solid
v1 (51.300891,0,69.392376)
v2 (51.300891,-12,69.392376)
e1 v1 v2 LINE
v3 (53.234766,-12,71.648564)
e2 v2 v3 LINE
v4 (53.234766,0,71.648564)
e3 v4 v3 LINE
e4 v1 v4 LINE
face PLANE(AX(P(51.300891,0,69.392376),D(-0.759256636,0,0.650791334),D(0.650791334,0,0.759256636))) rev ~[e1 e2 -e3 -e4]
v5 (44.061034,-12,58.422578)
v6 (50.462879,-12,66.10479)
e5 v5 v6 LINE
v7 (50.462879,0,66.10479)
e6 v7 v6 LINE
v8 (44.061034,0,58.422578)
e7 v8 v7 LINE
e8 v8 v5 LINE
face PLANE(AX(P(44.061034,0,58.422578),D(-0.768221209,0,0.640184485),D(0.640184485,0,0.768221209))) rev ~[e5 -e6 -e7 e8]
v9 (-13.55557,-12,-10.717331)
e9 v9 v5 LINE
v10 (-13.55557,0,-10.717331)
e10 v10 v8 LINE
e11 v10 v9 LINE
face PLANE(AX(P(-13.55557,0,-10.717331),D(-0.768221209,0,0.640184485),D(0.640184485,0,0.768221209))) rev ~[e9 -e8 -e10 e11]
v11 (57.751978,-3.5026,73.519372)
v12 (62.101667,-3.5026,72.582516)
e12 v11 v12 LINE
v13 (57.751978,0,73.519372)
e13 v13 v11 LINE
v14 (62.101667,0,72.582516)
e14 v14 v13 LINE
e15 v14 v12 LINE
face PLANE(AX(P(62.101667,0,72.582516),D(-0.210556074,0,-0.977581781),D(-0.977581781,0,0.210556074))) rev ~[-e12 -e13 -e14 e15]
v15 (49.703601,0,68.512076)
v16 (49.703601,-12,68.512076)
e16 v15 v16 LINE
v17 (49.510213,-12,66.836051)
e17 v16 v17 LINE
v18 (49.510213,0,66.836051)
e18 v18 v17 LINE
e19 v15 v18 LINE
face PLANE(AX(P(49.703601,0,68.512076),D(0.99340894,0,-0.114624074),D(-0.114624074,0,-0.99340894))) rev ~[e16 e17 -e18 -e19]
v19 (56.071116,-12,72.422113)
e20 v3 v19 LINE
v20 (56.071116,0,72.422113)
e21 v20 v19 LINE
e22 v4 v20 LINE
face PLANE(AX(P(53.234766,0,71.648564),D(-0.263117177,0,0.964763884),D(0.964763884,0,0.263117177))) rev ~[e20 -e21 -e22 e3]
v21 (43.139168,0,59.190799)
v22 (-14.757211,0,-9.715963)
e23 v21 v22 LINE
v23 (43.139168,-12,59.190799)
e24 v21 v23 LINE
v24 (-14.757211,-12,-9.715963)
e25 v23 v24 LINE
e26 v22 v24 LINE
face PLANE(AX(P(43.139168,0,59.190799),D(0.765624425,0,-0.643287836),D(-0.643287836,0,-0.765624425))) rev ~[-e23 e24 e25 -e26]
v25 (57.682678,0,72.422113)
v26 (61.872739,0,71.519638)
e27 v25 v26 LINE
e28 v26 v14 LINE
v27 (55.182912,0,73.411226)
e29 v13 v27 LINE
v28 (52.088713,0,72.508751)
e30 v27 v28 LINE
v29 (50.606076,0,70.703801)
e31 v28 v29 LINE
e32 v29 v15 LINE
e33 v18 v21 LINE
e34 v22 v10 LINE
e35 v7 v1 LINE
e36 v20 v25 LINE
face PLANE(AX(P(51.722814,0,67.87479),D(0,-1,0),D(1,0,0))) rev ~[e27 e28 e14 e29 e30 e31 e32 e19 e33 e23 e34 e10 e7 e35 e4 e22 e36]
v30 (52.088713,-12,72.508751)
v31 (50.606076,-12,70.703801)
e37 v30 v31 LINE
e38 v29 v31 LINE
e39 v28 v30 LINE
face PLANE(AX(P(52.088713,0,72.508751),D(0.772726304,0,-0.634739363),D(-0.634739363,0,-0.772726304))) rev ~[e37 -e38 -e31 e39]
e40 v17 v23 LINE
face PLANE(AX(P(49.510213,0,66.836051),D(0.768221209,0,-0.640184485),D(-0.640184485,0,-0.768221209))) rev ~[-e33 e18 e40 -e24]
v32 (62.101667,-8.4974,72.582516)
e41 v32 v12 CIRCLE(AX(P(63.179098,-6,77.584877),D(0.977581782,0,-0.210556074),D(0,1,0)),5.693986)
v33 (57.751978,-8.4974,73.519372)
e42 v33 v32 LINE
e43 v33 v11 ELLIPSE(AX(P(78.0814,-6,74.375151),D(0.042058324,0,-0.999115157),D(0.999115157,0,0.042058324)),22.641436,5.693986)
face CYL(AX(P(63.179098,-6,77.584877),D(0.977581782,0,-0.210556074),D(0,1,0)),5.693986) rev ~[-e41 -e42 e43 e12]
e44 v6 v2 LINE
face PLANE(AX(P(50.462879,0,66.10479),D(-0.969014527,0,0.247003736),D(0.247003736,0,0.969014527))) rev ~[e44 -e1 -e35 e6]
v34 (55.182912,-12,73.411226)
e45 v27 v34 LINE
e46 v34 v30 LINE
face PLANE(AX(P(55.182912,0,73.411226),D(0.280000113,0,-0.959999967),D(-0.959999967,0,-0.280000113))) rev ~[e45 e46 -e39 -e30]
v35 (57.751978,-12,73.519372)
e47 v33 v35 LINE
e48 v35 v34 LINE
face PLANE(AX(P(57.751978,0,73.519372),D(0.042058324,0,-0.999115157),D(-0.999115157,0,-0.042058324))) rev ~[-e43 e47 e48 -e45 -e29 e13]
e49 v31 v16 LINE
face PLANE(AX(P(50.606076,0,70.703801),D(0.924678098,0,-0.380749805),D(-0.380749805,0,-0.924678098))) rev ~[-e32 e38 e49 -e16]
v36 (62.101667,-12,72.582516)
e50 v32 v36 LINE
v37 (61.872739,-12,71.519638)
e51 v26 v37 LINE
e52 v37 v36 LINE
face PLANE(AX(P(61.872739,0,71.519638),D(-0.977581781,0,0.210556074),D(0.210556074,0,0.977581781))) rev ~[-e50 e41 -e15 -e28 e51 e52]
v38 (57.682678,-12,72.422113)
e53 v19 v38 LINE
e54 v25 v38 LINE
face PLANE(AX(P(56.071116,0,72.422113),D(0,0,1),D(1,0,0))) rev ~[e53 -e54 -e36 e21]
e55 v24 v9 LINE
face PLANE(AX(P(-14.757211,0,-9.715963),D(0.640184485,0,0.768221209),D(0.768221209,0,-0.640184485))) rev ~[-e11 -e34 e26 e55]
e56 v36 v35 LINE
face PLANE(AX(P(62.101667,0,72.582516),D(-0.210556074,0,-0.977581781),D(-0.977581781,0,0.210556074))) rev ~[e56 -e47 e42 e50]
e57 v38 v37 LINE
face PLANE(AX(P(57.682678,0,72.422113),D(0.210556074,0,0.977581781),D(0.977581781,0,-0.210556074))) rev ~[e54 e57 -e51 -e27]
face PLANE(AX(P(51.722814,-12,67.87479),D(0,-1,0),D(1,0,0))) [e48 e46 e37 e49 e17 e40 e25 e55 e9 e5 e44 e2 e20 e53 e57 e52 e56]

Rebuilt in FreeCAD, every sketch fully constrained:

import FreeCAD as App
import Part
import Sketcher
Q = App.Units.Quantity

doc = App.newDocument("Part")
params = doc.addObject("Spreadsheet::Sheet", "Params")
for row, (alias, value) in enumerate([
    ("sketch1_length", "10 mm"),
    ("sketch1_length2", "90 mm"),
    ("pad1_length", "12 mm"),
    ("pocket1_length", "25 mm"),
], start=1):
    params.set(f"A{row}", alias)
    params.set(f"B{row}", "=" + value)
    params.setAlias(f"B{row}", alias)

body = doc.addObject("PartDesign::Body", "Body")

sketch1 = body.newObject("Sketcher::SketchObject", "Sketch")
sketch1.AttachmentSupport = (doc.getObject("XZ_Plane"), [""])
sketch1.MapMode = "FlatFace"
sketch1.addGeometry(Part.LineSegment(App.Vector(44.061034, 58.422578, 0), App.Vector(50.462879, 66.10479, 0)), False)
sketch1.addGeometry(Part.LineSegment(App.Vector(50.462879, 66.10479, 0), App.Vector(51.300891, 69.392376, 0)), False)
sketch1.addGeometry(Part.LineSegment(App.Vector(51.300891, 69.392376, 0), App.Vector(53.234766, 71.648564, 0)), False)
sketch1.addGeometry(Part.LineSegment(App.Vector(53.234766, 71.648564, 0), App.Vector(56.071116, 72.422113, 0)), False)
sketch1.addGeometry(Part.LineSegment(App.Vector(56.071116, 72.422113, 0), App.Vector(57.682678, 72.422113, 0)), False)
sketch1.addGeometry(Part.LineSegment(App.Vector(57.682678, 72.422113, 0), App.Vector(61.872739, 71.519638, 0)), False)
sketch1.addGeometry(Part.LineSegment(App.Vector(61.872739, 71.519638, 0), App.Vector(62.101667, 72.582516, 0)), False)
sketch1.addGeometry(Part.LineSegment(App.Vector(62.101667, 72.582516, 0), App.Vector(57.751978, 73.519372, 0)), False)
sketch1.addGeometry(Part.LineSegment(App.Vector(57.751978, 73.519372, 0), App.Vector(55.182912, 73.411226, 0)), False)
sketch1.addGeometry(Part.LineSegment(App.Vector(55.182912, 73.411226, 0), App.Vector(52.088713, 72.508751, 0)), False)
sketch1.addGeometry(Part.LineSegment(App.Vector(52.088713, 72.508751, 0), App.Vector(50.606076, 70.703801, 0)), False)
sketch1.addGeometry(Part.LineSegment(App.Vector(50.606076, 70.703801, 0), App.Vector(49.703601, 68.512076, 0)), False)
sketch1.addGeometry(Part.LineSegment(App.Vector(49.703601, 68.512076, 0), App.Vector(49.510213, 66.836051, 0)), False)
sketch1.addGeometry(Part.LineSegment(App.Vector(49.510213, 66.836051, 0), App.Vector(43.139168, 59.190799, 0)), False)
sketch1.addGeometry(Part.LineSegment(App.Vector(43.139168, 59.190799, 0), App.Vector(-14.757211, -9.715963, 0)), False)
sketch1.addGeometry(Part.LineSegment(App.Vector(-14.757211, -9.715963, 0), App.Vector(-13.55557, -10.717331, 0)), False)
sketch1.addGeometry(Part.LineSegment(App.Vector(-13.55557, -10.717331, 0), App.Vector(44.061034, 58.422578, 0)), False)
sketch1.addConstraint(Sketcher.Constraint("Coincident", 0, 2, 1, 1))
sketch1.addConstraint(Sketcher.Constraint("Coincident", 1, 2, 2, 1))
sketch1.addConstraint(Sketcher.Constraint("Coincident", 2, 2, 3, 1))
sketch1.addConstraint(Sketcher.Constraint("Coincident", 3, 2, 4, 1))
sketch1.addConstraint(Sketcher.Constraint("Coincident", 4, 2, 5, 1))
sketch1.addConstraint(Sketcher.Constraint("Coincident", 5, 2, 6, 1))
sketch1.addConstraint(Sketcher.Constraint("Coincident", 6, 2, 7, 1))
sketch1.addConstraint(Sketcher.Constraint("Coincident", 7, 2, 8, 1))
sketch1.addConstraint(Sketcher.Constraint("Coincident", 8, 2, 9, 1))
sketch1.addConstraint(Sketcher.Constraint("Coincident", 9, 2, 10, 1))
sketch1.addConstraint(Sketcher.Constraint("Coincident", 10, 2, 11, 1))
sketch1.addConstraint(Sketcher.Constraint("Coincident", 11, 2, 12, 1))
sketch1.addConstraint(Sketcher.Constraint("Coincident", 12, 2, 13, 1))
sketch1.addConstraint(Sketcher.Constraint("Coincident", 13, 2, 14, 1))
sketch1.addConstraint(Sketcher.Constraint("Coincident", 14, 2, 15, 1))
sketch1.addConstraint(Sketcher.Constraint("Coincident", 15, 2, 16, 1))
sketch1.addConstraint(Sketcher.Constraint("Coincident", 16, 2, 0, 1))
sketch1.addConstraint(Sketcher.Constraint("Horizontal", 4))
sketch1.addConstraint(Sketcher.Constraint("Perpendicular", 5, 6))
sketch1.addConstraint(Sketcher.Constraint("Perpendicular", 6, 7))
sketch1.addConstraint(Sketcher.Constraint("Parallel", 0, 13))
sketch1.addConstraint(Sketcher.Constraint("Perpendicular", 13, 15))
sketch1.addConstraint(Sketcher.Constraint("Perpendicular", 15, 16))
sketch1.addConstraint(Sketcher.Constraint("Distance", 0, Q("10 mm")))
sketch1.addConstraint(Sketcher.Constraint("Distance", 16, Q("90 mm")))
sketch1.addConstraint(Sketcher.Constraint("DistanceY", 13, 2, 10, 2, Q("11.513002 mm")))
sketch1.addConstraint(Sketcher.Constraint("DistanceX", 4, 1, 4, 2, Q("1.611562 mm")))
sketch1.addConstraint(Sketcher.Constraint("DistanceY", -1, 1, 10, 2, Q("70.703801 mm")))
sketch1.addConstraint(Sketcher.Constraint("DistanceX", -1, 1, 11, 2, Q("49.703601 mm")))
sketch1.addConstraint(Sketcher.Constraint("DistanceX", 0, 2, 4, 2, Q("7.219799 mm")))
sketch1.addConstraint(Sketcher.Constraint("DistanceX", 2, 2, 6, 2, Q("8.866901 mm")))
sketch1.addConstraint(Sketcher.Constraint("DistanceX", 4, 2, 7, 2, Q("0.0693 mm")))
sketch1.addConstraint(Sketcher.Constraint("DistanceX", 9, 2, 8, 2, Q("3.094199 mm")))
sketch1.addConstraint(Sketcher.Constraint("DistanceY", 11, 2, 1, 2, Q("0.880301 mm")))
sketch1.addConstraint(Sketcher.Constraint("DistanceX", 14, 2, 1, 2, Q("66.058102 mm")))
sketch1.addConstraint(Sketcher.Constraint("DistanceY", 16, 2, 11, 2, Q("10.089498 mm")))
sketch1.addConstraint(Sketcher.Constraint("Distance", 1, Q("3.392711 mm")))
sketch1.addConstraint(Sketcher.Constraint("Distance", 3, Q("2.939942 mm")))
sketch1.addConstraint(Sketcher.Constraint("Distance", 5, Q("4.286149 mm")))
sketch1.addConstraint(Sketcher.Constraint("Distance", 6, Q("1.087252 mm")))
sketch1.addConstraint(Sketcher.Constraint("Distance", 8, Q("2.571341 mm")))
sketch1.addConstraint(Sketcher.Constraint("Distance", 10, Q("2.33582 mm")))
sketch1.addConstraint(Sketcher.Constraint("Distance", 13, Q("9.951889 mm")))
sketch1.addConstraint(Sketcher.Constraint("DistanceX", -1, 1, 0, 2, Q("50.462879 mm")))
sketch1.addConstraint(Sketcher.Constraint("DistanceY", -1, 1, 0, 2, Q("66.10479 mm")))
sketch1.addConstraint(Sketcher.Constraint("DistanceX", -1, 1, 1, 2, Q("51.300891 mm")))
sketch1.addConstraint(Sketcher.Constraint("DistanceX", -1, 1, 5, 2, Q("61.872739 mm")))
sketch1.addConstraint(Sketcher.Constraint("DistanceY", -1, 1, 5, 2, Q("71.519638 mm")))
sketch1.addConstraint(Sketcher.Constraint("DistanceY", -1, 1, 9, 2, Q("72.508751 mm")))
sketch1.addConstraint(Sketcher.Constraint("DistanceX", -1, 1, 13, 2, Q("43.139168 mm")))
sketch1.addConstraint(Sketcher.Constraint("DistanceY", 2, 2, 8, 2, Q("1.762662 mm")))
sketch1.setExpression("Constraints[23]", "Params.sketch1_length")
sketch1.setExpression("Constraints[24]", "Params.sketch1_length2")
pad1 = body.newObject("PartDesign::Pad", "Pad")
pad1.Profile = sketch1
pad1.setExpression("Length", "Params.pad1_length")

sketch2 = body.newObject("Sketcher::SketchObject", "Sketch001")
sketch2.Placement = App.Placement(App.Vector(44.408381, 0, -9.564882), App.Rotation(App.Vector(0, 1, 0), App.Vector(0.210556074, 0, 0.977581782), App.Vector(0.977581782, 0, -0.210556074), "ZXY"))
sketch2.addGeometry(Part.Circle(App.Vector(-6, 89.148305, 0), App.Vector(0, 0, 1), 5.693986), False)
sketch2.addConstraint(Sketcher.Constraint("DistanceX", 0, 3, -1, 1, Q("6 mm")))
sketch2.addConstraint(Sketcher.Constraint("Diameter", 0, Q("11.387973 mm")))
sketch2.addConstraint(Sketcher.Constraint("DistanceY", -1, 1, 0, 3, Q("89.148305 mm")))
pocket1 = body.newObject("PartDesign::Pocket", "Pocket")
pocket1.Profile = sketch2
pocket1.setExpression("Length", "Params.pocket1_length")

doc.recompute()
